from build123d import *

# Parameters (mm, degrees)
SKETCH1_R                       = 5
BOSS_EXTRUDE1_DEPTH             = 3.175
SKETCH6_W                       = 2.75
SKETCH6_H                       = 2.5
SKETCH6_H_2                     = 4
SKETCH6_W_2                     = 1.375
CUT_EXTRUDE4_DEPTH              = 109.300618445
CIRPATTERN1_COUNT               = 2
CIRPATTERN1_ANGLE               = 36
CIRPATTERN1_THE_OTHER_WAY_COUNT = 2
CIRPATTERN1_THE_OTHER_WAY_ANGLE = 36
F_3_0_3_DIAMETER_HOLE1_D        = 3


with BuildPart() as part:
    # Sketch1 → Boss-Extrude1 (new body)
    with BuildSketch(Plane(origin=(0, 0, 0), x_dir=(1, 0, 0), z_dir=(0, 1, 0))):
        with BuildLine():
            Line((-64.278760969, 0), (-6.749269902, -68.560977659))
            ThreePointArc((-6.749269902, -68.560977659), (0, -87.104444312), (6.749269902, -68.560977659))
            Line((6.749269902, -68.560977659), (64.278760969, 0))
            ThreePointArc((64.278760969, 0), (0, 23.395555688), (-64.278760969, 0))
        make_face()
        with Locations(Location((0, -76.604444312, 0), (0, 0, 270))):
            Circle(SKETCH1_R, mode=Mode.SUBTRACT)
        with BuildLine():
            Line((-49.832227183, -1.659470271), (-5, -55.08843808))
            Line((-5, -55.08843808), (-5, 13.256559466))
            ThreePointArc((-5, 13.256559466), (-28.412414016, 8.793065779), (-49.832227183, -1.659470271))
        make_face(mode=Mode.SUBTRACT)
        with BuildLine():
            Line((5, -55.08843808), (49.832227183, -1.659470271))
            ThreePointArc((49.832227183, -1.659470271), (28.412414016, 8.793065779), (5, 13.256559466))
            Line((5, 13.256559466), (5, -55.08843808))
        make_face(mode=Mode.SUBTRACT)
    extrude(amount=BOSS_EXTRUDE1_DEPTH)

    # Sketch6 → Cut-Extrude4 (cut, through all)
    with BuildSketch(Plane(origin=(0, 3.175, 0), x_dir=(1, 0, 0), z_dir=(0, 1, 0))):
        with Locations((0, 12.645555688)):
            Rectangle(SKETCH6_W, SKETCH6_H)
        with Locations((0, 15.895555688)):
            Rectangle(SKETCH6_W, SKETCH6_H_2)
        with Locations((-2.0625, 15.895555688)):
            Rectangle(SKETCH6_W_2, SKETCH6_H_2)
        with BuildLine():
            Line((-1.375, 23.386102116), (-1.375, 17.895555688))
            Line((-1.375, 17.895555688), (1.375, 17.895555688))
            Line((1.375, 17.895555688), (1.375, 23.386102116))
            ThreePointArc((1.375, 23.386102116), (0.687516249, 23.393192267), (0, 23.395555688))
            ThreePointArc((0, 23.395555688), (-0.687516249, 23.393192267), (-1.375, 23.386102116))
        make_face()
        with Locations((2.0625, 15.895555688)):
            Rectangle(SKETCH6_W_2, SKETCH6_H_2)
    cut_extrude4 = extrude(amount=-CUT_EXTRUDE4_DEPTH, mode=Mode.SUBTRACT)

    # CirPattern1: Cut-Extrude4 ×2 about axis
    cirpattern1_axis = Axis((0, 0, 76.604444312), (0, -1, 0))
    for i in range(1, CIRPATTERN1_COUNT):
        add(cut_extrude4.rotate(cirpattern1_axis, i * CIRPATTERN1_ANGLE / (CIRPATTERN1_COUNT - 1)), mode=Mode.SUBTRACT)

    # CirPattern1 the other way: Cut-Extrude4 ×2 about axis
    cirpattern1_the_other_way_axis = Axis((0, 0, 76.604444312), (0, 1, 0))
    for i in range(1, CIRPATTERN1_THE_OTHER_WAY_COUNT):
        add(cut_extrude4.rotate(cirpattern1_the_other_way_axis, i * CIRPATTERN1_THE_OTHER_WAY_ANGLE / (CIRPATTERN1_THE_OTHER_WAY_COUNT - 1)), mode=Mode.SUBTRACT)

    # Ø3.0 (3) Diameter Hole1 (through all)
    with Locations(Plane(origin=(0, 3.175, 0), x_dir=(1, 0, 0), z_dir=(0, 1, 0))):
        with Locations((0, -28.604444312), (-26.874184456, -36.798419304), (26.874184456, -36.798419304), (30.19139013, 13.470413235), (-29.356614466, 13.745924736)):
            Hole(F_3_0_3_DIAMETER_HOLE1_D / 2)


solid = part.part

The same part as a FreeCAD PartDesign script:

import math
import FreeCAD as App
import Part
import Sketcher
Q = App.Units.Quantity

doc = App.newDocument("Part")
body = doc.addObject("PartDesign::Body", "Body")

# Sketch on XZ plane
sketch1 = doc.addObject("Sketcher::SketchObject", "Sketch")
body.addObject(sketch1)
sketch1.AttachmentSupport = (doc.XZ_Plane, [""])
sketch1.MapMode = "FlatFace"
sketch1.addGeometry([
    Part.LineSegment(App.Vector(-64, 0, 0), App.Vector(-7, 69, 0)),  # 0
    Part.ArcOfCircle(Part.Circle(App.Vector(0, 77, 0), App.Vector(0, 0, 1), 10), math.radians(-50), math.radians(230)),  # 1
    Part.LineSegment(App.Vector(7, 69, 0), App.Vector(64, 0, 0)),  # 2
    Part.ArcOfCircle(Part.Circle(App.Vector(0, 77, 0), App.Vector(0, 0, 1), 100), math.radians(-130), math.radians(-50)),  # 3
    Part.Circle(App.Vector(0, 77, 0), App.Vector(0, 0, 1), 5),  # 4
    Part.LineSegment(App.Vector(-5, 55, 0), App.Vector(-50, 2, 0)),  # 5
    Part.ArcOfCircle(Part.Circle(App.Vector(0, 77, 0), App.Vector(0, 0, 1), 90), math.radians(-124), math.radians(-93)),  # 6
    Part.LineSegment(App.Vector(-5, -13, 0), App.Vector(-5, 55, 0)),  # 7
    Part.LineSegment(App.Vector(50, 2, 0), App.Vector(5, 55, 0)),  # 8
    Part.LineSegment(App.Vector(5, 55, 0), App.Vector(5, -13, 0)),  # 9
    Part.ArcOfCircle(Part.Circle(App.Vector(0, 77, 0), App.Vector(0, 0, 1), 90), math.radians(-87), math.radians(-56)),  # 10
], False)
sketch1.addConstraint([
    Sketcher.Constraint("Coincident", 0, 2, 1, 2),
    Sketcher.Constraint("Coincident", 1, 1, 2, 1),
    Sketcher.Constraint("Coincident", 2, 2, 3, 2),
    Sketcher.Constraint("Coincident", 3, 1, 0, 1),
    Sketcher.Constraint("Coincident", 5, 2, 6, 1),
    Sketcher.Constraint("Coincident", 6, 2, 7, 1),
    Sketcher.Constraint("Coincident", 7, 2, 5, 1),
    Sketcher.Constraint("Coincident", 8, 2, 9, 1),
    Sketcher.Constraint("Coincident", 9, 2, 10, 1),
    Sketcher.Constraint("Coincident", 10, 2, 8, 1),
    Sketcher.Constraint("Vertical", 7),
    Sketcher.Constraint("Vertical", 9),
    Sketcher.Constraint("Coincident", 3, 3, 1, 3),
    Sketcher.Constraint("Coincident", 4, 3, 1, 3),
    Sketcher.Constraint("Coincident", 6, 3, 1, 3),
    Sketcher.Constraint("Coincident", 10, 3, 1, 3),
    Sketcher.Constraint("Equal", 6, 10),
    Sketcher.Constraint("Symmetric", 2, 2, 3, 1, -1, 1),
    Sketcher.Constraint("Symmetric", 0, 2, 1, 1, -2),
    Sketcher.Constraint("Symmetric", 7, 2, 8, 2, -2),
    Sketcher.Constraint("Parallel", 0, 5),
    Sketcher.Constraint("Parallel", 2, 8),
    Sketcher.Constraint("Diameter", 4, 10.0),
    Sketcher.Constraint("Radius", 3, 100.0),
    Sketcher.Constraint("Radius", 6, 90.0),
    Sketcher.Constraint("Radius", 1, 10.5),
    Sketcher.Constraint("Angle", 0, Q("50 deg")),
    Sketcher.Constraint("DistanceX", 6, 2, -1, 1, 5.0),
    Sketcher.Constraint("DistanceY", 7, 1, 7, 2, 68.344998),
    Sketcher.Constraint("DistanceX", 0, 2, -1, 1, 6.74927),
])
pad1 = doc.addObject("PartDesign::Pad", "Pad")
body.addObject(pad1)
pad1.Profile = sketch1
pad1.Length = 3.175
pad1.Reversed = True

# Sketch on XZ plane
sketch2 = doc.addObject("Sketcher::SketchObject", "Sketch001")
body.addObject(sketch2)
sketch2.AttachmentSupport = (doc.XZ_Plane, [""])
sketch2.MapMode = "FlatFace"
sketch2.AttachmentOffset = App.Placement(App.Vector(0, 0, -3.175), App.Rotation())
sketch2.addGeometry([
    Part.LineSegment(App.Vector(-1.4, -11.4, 0), App.Vector(1.4, -11.4, 0)),  # 0
    Part.LineSegment(App.Vector(1.4, -11.4, 0), App.Vector(1.4, -13.9, 0)),  # 1
    Part.LineSegment(App.Vector(1.4, -13.9, 0), App.Vector(2.8, -13.9, 0)),  # 2
    Part.LineSegment(App.Vector(2.8, -13.9, 0), App.Vector(2.8, -17.9, 0)),  # 3
    Part.LineSegment(App.Vector(2.8, -17.9, 0), App.Vector(1.4, -17.9, 0)),  # 4
    Part.LineSegment(App.Vector(1.4, -17.9, 0), App.Vector(1.4, -23.4, 0)),  # 5
    Part.ArcOfCircle(Part.Circle(App.Vector(0, 76.6, 0), App.Vector(0, 0, 1), 100), math.radians(-90), math.radians(-89.21)),  # 6
    Part.ArcOfCircle(Part.Circle(App.Vector(0, 76.6, 0), App.Vector(0, 0, 1), 100), math.radians(-90.79), math.radians(-90)),  # 7
    Part.LineSegment(App.Vector(-1.4, -23.4, 0), App.Vector(-1.4, -17.9, 0)),  # 8
    Part.LineSegment(App.Vector(-1.4, -17.9, 0), App.Vector(-2.8, -17.9, 0)),  # 9
    Part.LineSegment(App.Vector(-2.8, -17.9, 0), App.Vector(-2.8, -13.9, 0)),  # 10
    Part.LineSegment(App.Vector(-2.8, -13.9, 0), App.Vector(-1.4, -13.9, 0)),  # 11
    Part.LineSegment(App.Vector(-1.4, -13.9, 0), App.Vector(-1.4, -11.4, 0)),  # 12
], False)
sketch2.addConstraint([
    Sketcher.Constraint("Coincident", 0, 2, 1, 1),
    Sketcher.Constraint("Coincident", 1, 2, 2, 1),
    Sketcher.Constraint("Coincident", 2, 2, 3, 1),
    Sketcher.Constraint("Coincident", 3, 2, 4, 1),
    Sketcher.Constraint("Coincident", 4, 2, 5, 1),
    Sketcher.Constraint("Coincident", 5, 2, 6, 2),
    Sketcher.Constraint("Tangent", 6, 1, 7, 2),
    Sketcher.Constraint("Coincident", 7, 1, 8, 1),
    Sketcher.Constraint("Coincident", 8, 2, 9, 1),
    Sketcher.Constraint("Coincident", 9, 2, 10, 1),
    Sketcher.Constraint("Coincident", 10, 2, 11, 1),
    Sketcher.Constraint("Coincident", 11, 2, 12, 1),
    Sketcher.Constraint("Coincident", 12, 2, 0, 1),
    Sketcher.Constraint("Horizontal", 0),
    Sketcher.Constraint("Vertical", 1),
    Sketcher.Constraint("Horizontal", 2),
    Sketcher.Constraint("Vertical", 3),
    Sketcher.Constraint("Horizontal", 4),
    Sketcher.Constraint("Vertical", 5),
    Sketcher.Constraint("Vertical", 8),
    Sketcher.Constraint("Horizontal", 9),
    Sketcher.Constraint("Vertical", 10),
    Sketcher.Constraint("Horizontal", 11),
    Sketcher.Constraint("Vertical", 12),
    Sketcher.Constraint("Equal", 6, 7),
    Sketcher.Constraint("Symmetric", 5, 2, 7, 1, -2),
    Sketcher.Constraint("Symmetric", 3, 2, 9, 2, -2),
    Sketcher.Constraint("Symmetric", 1, 2, 11, 2, -2),
    Sketcher.Constraint("PointOnObject", 6, 1, -2),
    Sketcher.Constraint("Vertical", 1, 2, 4, 2),
    Sketcher.Constraint("Radius", 6, 100.000001),
    Sketcher.Constraint("DistanceY", 3, 2, 3, 1, 4.0),
    Sketcher.Constraint("DistanceY", 1, 2, 1, 1, 2.5),
    Sketcher.Constraint("DistanceY", 0, 2, 7, 3, 88.000001),
    Sketcher.Constraint("DistanceX", 0, 1, 0, 2, 2.75),
    Sketcher.Constraint("DistanceX", 9, 2, 3, 2, 5.5),
    Sketcher.Constraint("DistanceY", -1, 1, 6, 3, 76.604446),
])
pocket1 = doc.addObject("PartDesign::Pocket", "Pocket")
body.addObject(pocket1)
pocket1.Profile = sketch2
pocket1.Type = "ThroughAll"
pocket1.Reversed = True
doc.recompute()

datumline = doc.addObject("PartDesign::Line", "DatumLine")
body.addObject(datumline)
datumline.Placement = App.Placement(App.Vector(0, 0, 76.604444), App.Rotation(App.Vector(0, 0, 1), App.Vector(0, -1, 0)))
polarpattern = doc.addObject("PartDesign::PolarPattern", "PolarPattern")
body.addObject(polarpattern)
polarpattern.Originals = [pocket1]
polarpattern.Axis = (datumline, [""])
polarpattern.Angle = 36
polarpattern.Occurrences = 2
body.Tip = polarpattern
doc.recompute()

datumline2 = doc.addObject("PartDesign::Line", "DatumLine001")
body.addObject(datumline2)
datumline2.Placement = App.Placement(App.Vector(0, 0, 76.604444), App.Rotation(App.Vector(0, 0, 1), App.Vector(0, 1, 0)))
polarpattern2 = doc.addObject("PartDesign::PolarPattern", "PolarPattern001")
body.addObject(polarpattern2)
polarpattern2.Originals = [pocket1]
polarpattern2.Axis = (datumline2, [""])
polarpattern2.Angle = 36
polarpattern2.Occurrences = 2
body.Tip = polarpattern2

# Sketch on XZ plane
sketch3 = doc.addObject("Sketcher::SketchObject", "Sketch002")
body.addObject(sketch3)
sketch3.AttachmentSupport = (doc.XZ_Plane, [""])
sketch3.MapMode = "FlatFace"
sketch3.AttachmentOffset = App.Placement(App.Vector(0, 0, -3.175), App.Rotation())
sketch3.addGeometry([
    Part.Circle(App.Vector(0, 28.6, 0), App.Vector(0, 0, 1), 1.5),  # 0
    Part.Circle(App.Vector(-26.9, 36.8, 0), App.Vector(0, 0, 1), 1.5),  # 1
    Part.Circle(App.Vector(26.9, 36.8, 0), App.Vector(0, 0, 1), 1.5),  # 2
    Part.Circle(App.Vector(30.2, -13.5, 0), App.Vector(0, 0, 1), 1.5),  # 3
    Part.Circle(App.Vector(-29.4, -13.7, 0), App.Vector(0, 0, 1), 1.5),  # 4
], False)
sketch3.addConstraint([
    Sketcher.Constraint("Equal", 0, 1),
    Sketcher.Constraint("Equal", 1, 2),
    Sketcher.Constraint("Equal", 2, 3),
    Sketcher.Constraint("Equal", 3, 4),
    Sketcher.Constraint("Symmetric", 1, 3, 2, 3, -2),
    Sketcher.Constraint("PointOnObject", 0, 3, -2),
    Sketcher.Constraint("Diameter", 0, 3.0),
    Sketcher.Constraint("DistanceX", 4, 3, 2, 3, 56.230799),
    Sketcher.Constraint("DistanceY", -1, 1, 1, 3, 36.798419),
    Sketcher.Constraint("DistanceX", -1, 1, 3, 3, 30.19139),
    Sketcher.Constraint("DistanceX", 1, 3, 2, 3, 53.748369),
    Sketcher.Constraint("DistanceY", 4, 3, 0, 3, 42.350369),
    Sketcher.Constraint("DistanceY", 4, 3, 3, 3, 0.275512),
    Sketcher.Constraint("DistanceY", -1, 1, 0, 3, 28.604444),
])
doc.recompute()
hole = doc.addObject("PartDesign::Hole", "Hole")
body.addObject(hole)
hole.Profile = sketch3
hole.ThreadType = "None"
hole.Diameter = 3
hole.DepthType = "ThroughAll"
hole.Reversed = True

doc.recompute()
